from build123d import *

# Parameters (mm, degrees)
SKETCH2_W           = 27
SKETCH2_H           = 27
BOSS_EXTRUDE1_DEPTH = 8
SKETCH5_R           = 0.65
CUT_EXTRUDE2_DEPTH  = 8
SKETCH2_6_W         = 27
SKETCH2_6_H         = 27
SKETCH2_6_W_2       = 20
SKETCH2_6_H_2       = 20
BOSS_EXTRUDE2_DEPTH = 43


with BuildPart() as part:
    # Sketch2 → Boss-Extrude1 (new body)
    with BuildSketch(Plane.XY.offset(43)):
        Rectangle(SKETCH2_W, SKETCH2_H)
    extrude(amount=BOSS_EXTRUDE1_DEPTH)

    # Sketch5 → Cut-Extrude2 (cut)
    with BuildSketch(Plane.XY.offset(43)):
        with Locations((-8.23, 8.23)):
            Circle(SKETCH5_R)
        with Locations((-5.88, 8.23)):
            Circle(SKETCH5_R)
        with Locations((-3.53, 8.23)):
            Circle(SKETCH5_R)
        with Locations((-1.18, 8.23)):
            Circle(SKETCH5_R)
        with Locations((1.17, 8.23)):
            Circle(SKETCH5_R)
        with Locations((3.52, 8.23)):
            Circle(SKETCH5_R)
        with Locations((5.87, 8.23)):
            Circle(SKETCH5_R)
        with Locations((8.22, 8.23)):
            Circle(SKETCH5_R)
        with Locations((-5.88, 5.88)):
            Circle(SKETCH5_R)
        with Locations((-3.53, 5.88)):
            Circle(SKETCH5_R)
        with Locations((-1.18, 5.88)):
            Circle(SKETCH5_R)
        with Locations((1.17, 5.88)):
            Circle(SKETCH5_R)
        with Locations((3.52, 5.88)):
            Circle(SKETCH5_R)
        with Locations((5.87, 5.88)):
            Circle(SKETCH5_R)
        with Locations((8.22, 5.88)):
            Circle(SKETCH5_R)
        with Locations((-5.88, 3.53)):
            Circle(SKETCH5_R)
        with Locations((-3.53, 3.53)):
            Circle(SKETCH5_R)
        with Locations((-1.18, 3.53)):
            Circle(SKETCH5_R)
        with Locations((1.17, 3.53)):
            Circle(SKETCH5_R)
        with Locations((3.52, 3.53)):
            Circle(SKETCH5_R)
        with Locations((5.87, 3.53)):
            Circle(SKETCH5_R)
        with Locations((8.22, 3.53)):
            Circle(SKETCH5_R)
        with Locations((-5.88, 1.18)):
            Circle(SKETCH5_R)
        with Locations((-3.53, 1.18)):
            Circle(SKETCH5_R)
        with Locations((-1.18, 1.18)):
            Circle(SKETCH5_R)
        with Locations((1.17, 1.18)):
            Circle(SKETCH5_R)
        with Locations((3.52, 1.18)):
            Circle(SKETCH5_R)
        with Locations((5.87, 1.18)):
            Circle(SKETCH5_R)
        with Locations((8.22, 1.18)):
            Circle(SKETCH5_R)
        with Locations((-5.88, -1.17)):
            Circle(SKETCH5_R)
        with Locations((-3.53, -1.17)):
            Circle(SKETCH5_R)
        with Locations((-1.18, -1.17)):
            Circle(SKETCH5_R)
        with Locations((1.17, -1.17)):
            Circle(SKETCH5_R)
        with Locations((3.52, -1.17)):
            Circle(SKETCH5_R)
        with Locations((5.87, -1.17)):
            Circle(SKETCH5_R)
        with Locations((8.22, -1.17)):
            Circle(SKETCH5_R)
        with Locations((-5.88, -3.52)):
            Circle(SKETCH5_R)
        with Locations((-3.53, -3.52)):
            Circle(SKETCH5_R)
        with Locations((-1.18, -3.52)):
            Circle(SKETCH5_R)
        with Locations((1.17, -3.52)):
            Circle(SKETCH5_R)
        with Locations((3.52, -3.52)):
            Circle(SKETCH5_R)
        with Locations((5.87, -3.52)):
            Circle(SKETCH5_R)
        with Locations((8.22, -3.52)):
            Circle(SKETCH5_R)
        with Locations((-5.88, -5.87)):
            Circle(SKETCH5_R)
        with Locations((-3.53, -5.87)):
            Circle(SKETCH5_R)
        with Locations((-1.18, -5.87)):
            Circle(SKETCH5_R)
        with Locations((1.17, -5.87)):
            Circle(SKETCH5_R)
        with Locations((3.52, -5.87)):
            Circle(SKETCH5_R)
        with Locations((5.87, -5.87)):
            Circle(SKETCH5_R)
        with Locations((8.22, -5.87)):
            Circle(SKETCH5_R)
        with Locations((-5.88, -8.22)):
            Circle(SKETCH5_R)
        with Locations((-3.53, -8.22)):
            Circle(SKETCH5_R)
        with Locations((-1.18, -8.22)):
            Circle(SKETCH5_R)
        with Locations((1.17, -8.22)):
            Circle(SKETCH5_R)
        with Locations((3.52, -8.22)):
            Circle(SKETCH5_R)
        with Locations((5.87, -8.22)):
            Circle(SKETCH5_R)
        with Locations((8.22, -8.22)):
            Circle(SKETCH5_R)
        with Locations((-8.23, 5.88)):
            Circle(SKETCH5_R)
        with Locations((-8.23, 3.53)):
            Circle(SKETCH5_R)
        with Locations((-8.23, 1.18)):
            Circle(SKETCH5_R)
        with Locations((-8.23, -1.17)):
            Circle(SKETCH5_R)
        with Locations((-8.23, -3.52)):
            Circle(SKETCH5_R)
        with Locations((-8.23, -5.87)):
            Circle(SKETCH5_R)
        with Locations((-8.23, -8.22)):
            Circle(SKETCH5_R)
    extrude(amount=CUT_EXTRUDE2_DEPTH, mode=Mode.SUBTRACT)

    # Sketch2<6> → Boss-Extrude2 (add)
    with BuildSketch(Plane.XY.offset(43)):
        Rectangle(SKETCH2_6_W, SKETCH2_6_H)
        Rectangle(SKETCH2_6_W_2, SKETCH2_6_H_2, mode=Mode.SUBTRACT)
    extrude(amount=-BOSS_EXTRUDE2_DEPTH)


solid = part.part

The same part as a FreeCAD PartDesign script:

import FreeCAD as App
import Part
import Sketcher

V = App.Vector

doc = App.newDocument("Part")
body = doc.addObject("PartDesign::Body", "Body")

sketch1 = body.newObject("Sketcher::SketchObject", "Sketch")
sketch1.AttachmentSupport = (doc.getObject("XY_Plane"), [""])
sketch1.MapMode = "FlatFace"
sketch1.AttachmentOffset = App.Placement(V(0, 0, 43), App.Rotation())
sketch1.addGeometry(Part.LineSegment(V(-13.5, 13.5, 0), V(-13.5, -13.5, 0)), False)
sketch1.addGeometry(Part.LineSegment(V(-13.5, -13.5, 0), V(13.5, -13.5, 0)), False)
sketch1.addGeometry(Part.LineSegment(V(13.5, -13.5, 0), V(13.5, 13.5, 0)), False)
sketch1.addGeometry(Part.LineSegment(V(13.5, 13.5, 0), V(-13.5, 13.5, 0)), False)
sketch1.addConstraint(Sketcher.Constraint("Coincident", 0, 2, 1, 1))
sketch1.addConstraint(Sketcher.Constraint("Coincident", 1, 2, 2, 1))
sketch1.addConstraint(Sketcher.Constraint("Coincident", 2, 2, 3, 1))
sketch1.addConstraint(Sketcher.Constraint("Coincident", 3, 2, 0, 1))
sketch1.addConstraint(Sketcher.Constraint("Vertical", 0))
sketch1.addConstraint(Sketcher.Constraint("Horizontal", 1))
sketch1.addConstraint(Sketcher.Constraint("Vertical", 2))
sketch1.addConstraint(Sketcher.Constraint("Horizontal", 3))
sketch1.addConstraint(Sketcher.Constraint("Symmetric", 0, 2, 2, 2, -1, 1))
sketch1.addConstraint(Sketcher.Constraint("Equal", 3, 0))
sketch1.addConstraint(Sketcher.Constraint("DistanceX", 1, 1, 1, 2, 27.0))
pad1 = body.newObject("PartDesign::Pad", "Pad")
pad1.Profile = sketch1
pad1.Length = 8

sketch2 = body.newObject("Sketcher::SketchObject", "Sketch001")
sketch2.AttachmentSupport = (doc.getObject("XY_Plane"), [""])
sketch2.MapMode = "FlatFace"
sketch2.AttachmentOffset = App.Placement(V(0, 0, 43), App.Rotation())
sketch2.addGeometry(Part.Circle(V(-8.23, 8.23, 0), V(0, 0, 1), 0.65), False)
sketch2.addGeometry(Part.Circle(V(-5.88, 8.23, 0), V(0, 0, 1), 0.65), False)
sketch2.addGeometry(Part.Circle(V(-3.53, 8.23, 0), V(0, 0, 1), 0.65), False)
sketch2.addGeometry(Part.Circle(V(-1.18, 8.23, 0), V(0, 0, 1), 0.65), False)
sketch2.addGeometry(Part.Circle(V(1.17, 8.23, 0), V(0, 0, 1), 0.65), False)
sketch2.addGeometry(Part.Circle(V(3.52, 8.23, 0), V(0, 0, 1), 0.65), False)
sketch2.addGeometry(Part.Circle(V(5.87, 8.23, 0), V(0, 0, 1), 0.65), False)
sketch2.addGeometry(Part.Circle(V(8.22, 8.23, 0), V(0, 0, 1), 0.65), False)
sketch2.addGeometry(Part.Circle(V(-5.88, 5.88, 0), V(0, 0, 1), 0.65), False)
sketch2.addGeometry(Part.Circle(V(-3.53, 5.88, 0), V(0, 0, 1), 0.65), False)
sketch2.addGeometry(Part.Circle(V(-1.18, 5.88, 0), V(0, 0, 1), 0.65), False)
sketch2.addGeometry(Part.Circle(V(1.17, 5.88, 0), V(0, 0, 1), 0.65), False)
sketch2.addGeometry(Part.Circle(V(3.52, 5.88, 0), V(0, 0, 1), 0.65), False)
sketch2.addGeometry(Part.Circle(V(5.87, 5.88, 0), V(0, 0, 1), 0.65), False)
sketch2.addGeometry(Part.Circle(V(8.22, 5.88, 0), V(0, 0, 1), 0.65), False)
sketch2.addGeometry(Part.Circle(V(-5.88, 3.53, 0), V(0, 0, 1), 0.65), False)
sketch2.addGeometry(Part.Circle(V(-3.53, 3.53, 0), V(0, 0, 1), 0.65), False)
sketch2.addGeometry(Part.Circle(V(-1.18, 3.53, 0), V(0, 0, 1), 0.65), False)
sketch2.addGeometry(Part.Circle(V(1.17, 3.53, 0), V(0, 0, 1), 0.65), False)
sketch2.addGeometry(Part.Circle(V(3.52, 3.53, 0), V(0, 0, 1), 0.65), False)
sketch2.addGeometry(Part.Circle(V(5.87, 3.53, 0), V(0, 0, 1), 0.65), False)
sketch2.addGeometry(Part.Circle(V(8.22, 3.53, 0), V(0, 0, 1), 0.65), False)
sketch2.addGeometry(Part.Circle(V(-5.88, 1.18, 0), V(0, 0, 1), 0.65), False)
sketch2.addGeometry(Part.Circle(V(-3.53, 1.18, 0), V(0, 0, 1), 0.65), False)
sketch2.addGeometry(Part.Circle(V(-1.18, 1.18, 0), V(0, 0, 1), 0.65), False)
sketch2.addGeometry(Part.Circle(V(1.17, 1.18, 0), V(0, 0, 1), 0.65), False)
sketch2.addGeometry(Part.Circle(V(3.52, 1.18, 0), V(0, 0, 1), 0.65), False)
sketch2.addGeometry(Part.Circle(V(5.87, 1.18, 0), V(0, 0, 1), 0.65), False)
sketch2.addGeometry(Part.Circle(V(8.22, 1.18, 0), V(0, 0, 1), 0.65), False)
sketch2.addGeometry(Part.Circle(V(-5.88, -1.17, 0), V(0, 0, 1), 0.65), False)
sketch2.addGeometry(Part.Circle(V(-3.53, -1.17, 0), V(0, 0, 1), 0.65), False)
sketch2.addGeometry(Part.Circle(V(-1.18, -1.17, 0), V(0, 0, 1), 0.65), False)
sketch2.addGeometry(Part.Circle(V(1.17, -1.17, 0), V(0, 0, 1), 0.65), False)
sketch2.addGeometry(Part.Circle(V(3.52, -1.17, 0), V(0, 0, 1), 0.65), False)
sketch2.addGeometry(Part.Circle(V(5.87, -1.17, 0), V(0, 0, 1), 0.65), False)
sketch2.addGeometry(Part.Circle(V(8.22, -1.17, 0), V(0, 0, 1), 0.65), False)
sketch2.addGeometry(Part.Circle(V(-5.88, -3.52, 0), V(0, 0, 1), 0.65), False)
sketch2.addGeometry(Part.Circle(V(-3.53, -3.52, 0), V(0, 0, 1), 0.65), False)
sketch2.addGeometry(Part.Circle(V(-1.18, -3.52, 0), V(0, 0, 1), 0.65), False)
sketch2.addGeometry(Part.Circle(V(1.17, -3.52, 0), V(0, 0, 1), 0.65), False)
sketch2.addGeometry(Part.Circle(V(3.52, -3.52, 0), V(0, 0, 1), 0.65), False)
sketch2.addGeometry(Part.Circle(V(5.87, -3.52, 0), V(0, 0, 1), 0.65), False)
sketch2.addGeometry(Part.Circle(V(8.22, -3.52, 0), V(0, 0, 1), 0.65), False)
sketch2.addGeometry(Part.Circle(V(-5.88, -5.87, 0), V(0, 0, 1), 0.65), False)
sketch2.addGeometry(Part.Circle(V(-3.53, -5.87, 0), V(0, 0, 1), 0.65), False)
sketch2.addGeometry(Part.Circle(V(-1.18, -5.87, 0), V(0, 0, 1), 0.65), False)
sketch2.addGeometry(Part.Circle(V(1.17, -5.87, 0), V(0, 0, 1), 0.65), False)
sketch2.addGeometry(Part.Circle(V(3.52, -5.87, 0), V(0, 0, 1), 0.65), False)
sketch2.addGeometry(Part.Circle(V(5.87, -5.87, 0), V(0, 0, 1), 0.65), False)
sketch2.addGeometry(Part.Circle(V(8.22, -5.87, 0), V(0, 0, 1), 0.65), False)
sketch2.addGeometry(Part.Circle(V(-5.88, -8.22, 0), V(0, 0, 1), 0.65), False)
sketch2.addGeometry(Part.Circle(V(-3.53, -8.22, 0), V(0, 0, 1), 0.65), False)
sketch2.addGeometry(Part.Circle(V(-1.18, -8.22, 0), V(0, 0, 1), 0.65), False)
sketch2.addGeometry(Part.Circle(V(1.17, -8.22, 0), V(0, 0, 1), 0.65), False)
sketch2.addGeometry(Part.Circle(V(3.52, -8.22, 0), V(0, 0, 1), 0.65), False)
sketch2.addGeometry(Part.Circle(V(5.87, -8.22, 0), V(0, 0, 1), 0.65), False)
sketch2.addGeometry(Part.Circle(V(8.22, -8.22, 0), V(0, 0, 1), 0.65), False)
sketch2.addGeometry(Part.Circle(V(-8.23, 5.88, 0), V(0, 0, 1), 0.65), False)
sketch2.addGeometry(Part.Circle(V(-8.23, 3.53, 0), V(0, 0, 1), 0.65), False)
sketch2.addGeometry(Part.Circle(V(-8.23, 1.18, 0), V(0, 0, 1), 0.65), False)
sketch2.addGeometry(Part.Circle(V(-8.23, -1.17, 0), V(0, 0, 1), 0.65), False)
sketch2.addGeometry(Part.Circle(V(-8.23, -3.52, 0), V(0, 0, 1), 0.65), False)
sketch2.addGeometry(Part.Circle(V(-8.23, -5.87, 0), V(0, 0, 1), 0.65), False)
sketch2.addGeometry(Part.Circle(V(-8.23, -8.22, 0), V(0, 0, 1), 0.65), False)
sketch2.addConstraint(Sketcher.Constraint("Equal", 0, 1))
sketch2.addConstraint(Sketcher.Constraint("Equal", 1, 2))
sketch2.addConstraint(Sketcher.Constraint("Equal", 2, 3))
sketch2.addConstraint(Sketcher.Constraint("Equal", 3, 4))
sketch2.addConstraint(Sketcher.Constraint("Equal", 4, 5))
sketch2.addConstraint(Sketcher.Constraint("Equal", 5, 6))
sketch2.addConstraint(Sketcher.Constraint("Equal", 6, 7))
sketch2.addConstraint(Sketcher.Constraint("Equal", 7, 8))
sketch2.addConstraint(Sketcher.Constraint("Equal", 8, 9))
sketch2.addConstraint(Sketcher.Constraint("Equal", 9, 10))
sketch2.addConstraint(Sketcher.Constraint("Equal", 10, 11))
sketch2.addConstraint(Sketcher.Constraint("Equal", 11, 12))
sketch2.addConstraint(Sketcher.Constraint("Equal", 12, 13))
sketch2.addConstraint(Sketcher.Constraint("Equal", 13, 14))
sketch2.addConstraint(Sketcher.Constraint("Equal", 14, 15))
sketch2.addConstraint(Sketcher.Constraint("Equal", 15, 16))
sketch2.addConstraint(Sketcher.Constraint("Equal", 16, 17))
sketch2.addConstraint(Sketcher.Constraint("Equal", 17, 18))
sketch2.addConstraint(Sketcher.Constraint("Equal", 18, 19))
sketch2.addConstraint(Sketcher.Constraint("Equal", 19, 20))
sketch2.addConstraint(Sketcher.Constraint("Equal", 20, 21))
sketch2.addConstraint(Sketcher.Constraint("Equal", 21, 22))
sketch2.addConstraint(Sketcher.Constraint("Equal", 22, 23))
sketch2.addConstraint(Sketcher.Constraint("Equal", 23, 24))
sketch2.addConstraint(Sketcher.Constraint("Equal", 24, 25))
sketch2.addConstraint(Sketcher.Constraint("Equal", 25, 26))
sketch2.addConstraint(Sketcher.Constraint("Equal", 26, 27))
sketch2.addConstraint(Sketcher.Constraint("Equal", 27, 28))
sketch2.addConstraint(Sketcher.Constraint("Equal", 28, 29))
sketch2.addConstraint(Sketcher.Constraint("Equal", 29, 30))
sketch2.addConstraint(Sketcher.Constraint("Equal", 30, 31))
sketch2.addConstraint(Sketcher.Constraint("Equal", 31, 32))
sketch2.addConstraint(Sketcher.Constraint("Equal", 32, 33))
sketch2.addConstraint(Sketcher.Constraint("Equal", 33, 34))
sketch2.addConstraint(Sketcher.Constraint("Equal", 34, 35))
sketch2.addConstraint(Sketcher.Constraint("Equal", 35, 36))
sketch2.addConstraint(Sketcher.Constraint("Equal", 36, 37))
sketch2.addConstraint(Sketcher.Constraint("Equal", 37, 38))
sketch2.addConstraint(Sketcher.Constraint("Equal", 38, 39))
sketch2.addConstraint(Sketcher.Constraint("Equal", 39, 40))
sketch2.addConstraint(Sketcher.Constraint("Equal", 40, 41))
sketch2.addConstraint(Sketcher.Constraint("Equal", 41, 42))
sketch2.addConstraint(Sketcher.Constraint("Equal", 42, 43))
sketch2.addConstraint(Sketcher.Constraint("Equal", 43, 44))
sketch2.addConstraint(Sketcher.Constraint("Equal", 44, 45))
sketch2.addConstraint(Sketcher.Constraint("Equal", 45, 46))
sketch2.addConstraint(Sketcher.Constraint("Equal", 46, 47))
sketch2.addConstraint(Sketcher.Constraint("Equal", 47, 48))
sketch2.addConstraint(Sketcher.Constraint("Equal", 48, 49))
sketch2.addConstraint(Sketcher.Constraint("Equal", 49, 50))
sketch2.addConstraint(Sketcher.Constraint("Equal", 50, 51))
sketch2.addConstraint(Sketcher.Constraint("Equal", 51, 52))
sketch2.addConstraint(Sketcher.Constraint("Equal", 52, 53))
sketch2.addConstraint(Sketcher.Constraint("Equal", 53, 54))
sketch2.addConstraint(Sketcher.Constraint("Equal", 54, 55))
sketch2.addConstraint(Sketcher.Constraint("Equal", 55, 56))
sketch2.addConstraint(Sketcher.Constraint("Equal", 56, 57))
sketch2.addConstraint(Sketcher.Constraint("Equal", 57, 58))
sketch2.addConstraint(Sketcher.Constraint("Equal", 58, 59))
sketch2.addConstraint(Sketcher.Constraint("Equal", 59, 60))
sketch2.addConstraint(Sketcher.Constraint("Equal", 60, 61))
sketch2.addConstraint(Sketcher.Constraint("Equal", 61, 62))
sketch2.addConstraint(Sketcher.Constraint("Equal", 62, 63))
sketch2.addConstraint(Sketcher.Constraint("Horizontal", 0, 3, 1, 3))
sketch2.addConstraint(Sketcher.Constraint("Horizontal", 1, 3, 2, 3))
sketch2.addConstraint(Sketcher.Constraint("Horizontal", 2, 3, 3, 3))
sketch2.addConstraint(Sketcher.Constraint("Horizontal", 3, 3, 4, 3))
sketch2.addConstraint(Sketcher.Constraint("Horizontal", 4, 3, 5, 3))
sketch2.addConstraint(Sketcher.Constraint("Horizontal", 5, 3, 6, 3))
sketch2.addConstraint(Sketcher.Constraint("Horizontal", 6, 3, 7, 3))
sketch2.addConstraint(Sketcher.Constraint("Horizontal", 8, 3, 9, 3))
sketch2.addConstraint(Sketcher.Constraint("Horizontal", 9, 3, 10, 3))
sketch2.addConstraint(Sketcher.Constraint("Horizontal", 10, 3, 11, 3))
sketch2.addConstraint(Sketcher.Constraint("Horizontal", 11, 3, 12, 3))
sketch2.addConstraint(Sketcher.Constraint("Horizontal", 12, 3, 13, 3))
sketch2.addConstraint(Sketcher.Constraint("Horizontal", 13, 3, 14, 3))
sketch2.addConstraint(Sketcher.Constraint("Horizontal", 15, 3, 16, 3))
sketch2.addConstraint(Sketcher.Constraint("Horizontal", 16, 3, 17, 3))
sketch2.addConstraint(Sketcher.Constraint("Horizontal", 17, 3, 18, 3))
sketch2.addConstraint(Sketcher.Constraint("Horizontal", 18, 3, 19, 3))
sketch2.addConstraint(Sketcher.Constraint("Horizontal", 19, 3, 20, 3))
sketch2.addConstraint(Sketcher.Constraint("Horizontal", 20, 3, 21, 3))
sketch2.addConstraint(Sketcher.Constraint("Horizontal", 22, 3, 23, 3))
sketch2.addConstraint(Sketcher.Constraint("Horizontal", 23, 3, 24, 3))
sketch2.addConstraint(Sketcher.Constraint("Horizontal", 24, 3, 25, 3))
sketch2.addConstraint(Sketcher.Constraint("Horizontal", 25, 3, 26, 3))
sketch2.addConstraint(Sketcher.Constraint("Horizontal", 26, 3, 27, 3))
sketch2.addConstraint(Sketcher.Constraint("Horizontal", 27, 3, 28, 3))
sketch2.addConstraint(Sketcher.Constraint("Horizontal", 29, 3, 30, 3))
sketch2.addConstraint(Sketcher.Constraint("Horizontal", 30, 3, 31, 3))
sketch2.addConstraint(Sketcher.Constraint("Horizontal", 31, 3, 32, 3))
sketch2.addConstraint(Sketcher.Constraint("Horizontal", 32, 3, 33, 3))
sketch2.addConstraint(Sketcher.Constraint("Horizontal", 33, 3, 34, 3))
sketch2.addConstraint(Sketcher.Constraint("Horizontal", 34, 3, 35, 3))
sketch2.addConstraint(Sketcher.Constraint("Horizontal", 36, 3, 37, 3))
sketch2.addConstraint(Sketcher.Constraint("Horizontal", 37, 3, 38, 3))
sketch2.addConstraint(Sketcher.Constraint("Horizontal", 38, 3, 39, 3))
sketch2.addConstraint(Sketcher.Constraint("Horizontal", 39, 3, 40, 3))
sketch2.addConstraint(Sketcher.Constraint("Horizontal", 40, 3, 41, 3))
sketch2.addConstraint(Sketcher.Constraint("Horizontal", 41, 3, 42, 3))
sketch2.addConstraint(Sketcher.Constraint("Horizontal", 43, 3, 44, 3))
sketch2.addConstraint(Sketcher.Constraint("Horizontal", 44, 3, 45, 3))
sketch2.addConstraint(Sketcher.Constraint("Horizontal", 45, 3, 46, 3))
sketch2.addConstraint(Sketcher.Constraint("Horizontal", 46, 3, 47, 3))
sketch2.addConstraint(Sketcher.Constraint("Horizontal", 47, 3, 48, 3))
sketch2.addConstraint(Sketcher.Constraint("Horizontal", 48, 3, 49, 3))
sketch2.addConstraint(Sketcher.Constraint("Horizontal", 50, 3, 51, 3))
sketch2.addConstraint(Sketcher.Constraint("Horizontal", 51, 3, 52, 3))
sketch2.addConstraint(Sketcher.Constraint("Horizontal", 52, 3, 53, 3))
sketch2.addConstraint(Sketcher.Constraint("Horizontal", 53, 3, 54, 3))
sketch2.addConstraint(Sketcher.Constraint("Horizontal", 54, 3, 55, 3))
sketch2.addConstraint(Sketcher.Constraint("Horizontal", 55, 3, 56, 3))
sketch2.addConstraint(Sketcher.Constraint("Horizontal", 14, 3, 57, 3))
sketch2.addConstraint(Sketcher.Constraint("Horizontal", 21, 3, 58, 3))
sketch2.addConstraint(Sketcher.Constraint("Horizontal", 28, 3, 59, 3))
sketch2.addConstraint(Sketcher.Constraint("Horizontal", 35, 3, 60, 3))
sketch2.addConstraint(Sketcher.Constraint("Horizontal", 42, 3, 61, 3))
sketch2.addConstraint(Sketcher.Constraint("Horizontal", 49, 3, 62, 3))
sketch2.addConstraint(Sketcher.Constraint("Horizontal", 56, 3, 63, 3))
sketch2.addConstraint(Sketcher.Constraint("Vertical", 1, 3, 8, 3))
sketch2.addConstraint(Sketcher.Constraint("Vertical", 2, 3, 9, 3))
sketch2.addConstraint(Sketcher.Constraint("Vertical", 3, 3, 10, 3))
sketch2.addConstraint(Sketcher.Constraint("Vertical", 4, 3, 11, 3))
sketch2.addConstraint(Sketcher.Constraint("Vertical", 5, 3, 12, 3))
sketch2.addConstraint(Sketcher.Constraint("Vertical", 6, 3, 13, 3))
sketch2.addConstraint(Sketcher.Constraint("Vertical", 7, 3, 14, 3))
sketch2.addConstraint(Sketcher.Constraint("Vertical", 8, 3, 15, 3))
sketch2.addConstraint(Sketcher.Constraint("Vertical", 9, 3, 16, 3))
sketch2.addConstraint(Sketcher.Constraint("Vertical", 10, 3, 17, 3))
sketch2.addConstraint(Sketcher.Constraint("Vertical", 11, 3, 18, 3))
sketch2.addConstraint(Sketcher.Constraint("Vertical", 12, 3, 19, 3))
sketch2.addConstraint(Sketcher.Constraint("Vertical", 13, 3, 20, 3))
sketch2.addConstraint(Sketcher.Constraint("Vertical", 14, 3, 21, 3))
sketch2.addConstraint(Sketcher.Constraint("Vertical", 15, 3, 22, 3))
sketch2.addConstraint(Sketcher.Constraint("Vertical", 16, 3, 23, 3))
sketch2.addConstraint(Sketcher.Constraint("Vertical", 17, 3, 24, 3))
sketch2.addConstraint(Sketcher.Constraint("Vertical", 18, 3, 25, 3))
sketch2.addConstraint(Sketcher.Constraint("Vertical", 19, 3, 26, 3))
sketch2.addConstraint(Sketcher.Constraint("Vertical", 20, 3, 27, 3))
sketch2.addConstraint(Sketcher.Constraint("Vertical", 21, 3, 28, 3))
sketch2.addConstraint(Sketcher.Constraint("Vertical", 22, 3, 29, 3))
sketch2.addConstraint(Sketcher.Constraint("Vertical", 23, 3, 30, 3))
sketch2.addConstraint(Sketcher.Constraint("Vertical", 24, 3, 31, 3))
sketch2.addConstraint(Sketcher.Constraint("Vertical", 25, 3, 32, 3))
sketch2.addConstraint(Sketcher.Constraint("Vertical", 26, 3, 33, 3))
sketch2.addConstraint(Sketcher.Constraint("Vertical", 27, 3, 34, 3))
sketch2.addConstraint(Sketcher.Constraint("Vertical", 28, 3, 35, 3))
sketch2.addConstraint(Sketcher.Constraint("Vertical", 29, 3, 36, 3))
sketch2.addConstraint(Sketcher.Constraint("Vertical", 30, 3, 37, 3))
sketch2.addConstraint(Sketcher.Constraint("Vertical", 31, 3, 38, 3))
sketch2.addConstraint(Sketcher.Constraint("Vertical", 32, 3, 39, 3))
sketch2.addConstraint(Sketcher.Constraint("Vertical", 33, 3, 40, 3))
sketch2.addConstraint(Sketcher.Constraint("Vertical", 34, 3, 41, 3))
sketch2.addConstraint(Sketcher.Constraint("Vertical", 35, 3, 42, 3))
sketch2.addConstraint(Sketcher.Constraint("Vertical", 36, 3, 43, 3))
sketch2.addConstraint(Sketcher.Constraint("Vertical", 37, 3, 44, 3))
sketch2.addConstraint(Sketcher.Constraint("Vertical", 38, 3, 45, 3))
sketch2.addConstraint(Sketcher.Constraint("Vertical", 39, 3, 46, 3))
sketch2.addConstraint(Sketcher.Constraint("Vertical", 40, 3, 47, 3))
sketch2.addConstraint(Sketcher.Constraint("Vertical", 41, 3, 48, 3))
sketch2.addConstraint(Sketcher.Constraint("Vertical", 42, 3, 49, 3))
sketch2.addConstraint(Sketcher.Constraint("Vertical", 43, 3, 50, 3))
sketch2.addConstraint(Sketcher.Constraint("Vertical", 44, 3, 51, 3))
sketch2.addConstraint(Sketcher.Constraint("Vertical", 45, 3, 52, 3))
sketch2.addConstraint(Sketcher.Constraint("Vertical", 46, 3, 53, 3))
sketch2.addConstraint(Sketcher.Constraint("Vertical", 47, 3, 54, 3))
sketch2.addConstraint(Sketcher.Constraint("Vertical", 48, 3, 55, 3))
sketch2.addConstraint(Sketcher.Constraint("Vertical", 49, 3, 56, 3))
sketch2.addConstraint(Sketcher.Constraint("Vertical", 0, 3, 57, 3))
sketch2.addConstraint(Sketcher.Constraint("Vertical", 57, 3, 58, 3))
sketch2.addConstraint(Sketcher.Constraint("Vertical", 58, 3, 59, 3))
sketch2.addConstraint(Sketcher.Constraint("Vertical", 59, 3, 60, 3))
sketch2.addConstraint(Sketcher.Constraint("Vertical", 60, 3, 61, 3))
sketch2.addConstraint(Sketcher.Constraint("Vertical", 61, 3, 62, 3))
sketch2.addConstraint(Sketcher.Constraint("Vertical", 62, 3, 63, 3))
sketch2.addConstraint(Sketcher.Constraint("Diameter", 0, 1.3))
sketch2.addConstraint(Sketcher.Constraint("DistanceX", 0, 3, -1, 1, 8.23))
sketch2.addConstraint(Sketcher.Constraint("DistanceY", -1, 1, 0, 3, 8.23))
sketch2.addConstraint(Sketcher.Constraint("DistanceX", 1, 3, -1, 1, 5.88))
sketch2.addConstraint(Sketcher.Constraint("DistanceX", 2, 3, -1, 1, 3.53))
sketch2.addConstraint(Sketcher.Constraint("DistanceX", 3, 3, -1, 1, 1.18))
sketch2.addConstraint(Sketcher.Constraint("DistanceX", -1, 1, 4, 3, 1.17))
sketch2.addConstraint(Sketcher.Constraint("DistanceX", -1, 1, 5, 3, 3.52))
sketch2.addConstraint(Sketcher.Constraint("DistanceX", -1, 1, 6, 3, 5.87))
sketch2.addConstraint(Sketcher.Constraint("DistanceX", -1, 1, 7, 3, 8.22))
sketch2.addConstraint(Sketcher.Constraint("DistanceY", -1, 1, 8, 3, 5.88))
sketch2.addConstraint(Sketcher.Constraint("DistanceY", -1, 1, 15, 3, 3.53))
sketch2.addConstraint(Sketcher.Constraint("DistanceY", -1, 1, 22, 3, 1.18))
sketch2.addConstraint(Sketcher.Constraint("DistanceY", 29, 3, -1, 1, 1.17))
sketch2.addConstraint(Sketcher.Constraint("DistanceY", 36, 3, -1, 1, 3.52))
sketch2.addConstraint(Sketcher.Constraint("DistanceY", 43, 3, -1, 1, 5.87))
sketch2.addConstraint(Sketcher.Constraint("DistanceY", 50, 3, -1, 1, 8.22))
pocket1 = body.newObject("PartDesign::Pocket", "Pocket")
pocket1.Profile = sketch2
pocket1.Length = 8
pocket1.Reversed = True

sketch3 = body.newObject("Sketcher::SketchObject", "Sketch002")
sketch3.AttachmentSupport = (doc.getObject("XY_Plane"), [""])
sketch3.MapMode = "FlatFace"
sketch3.AttachmentOffset = App.Placement(V(0, 0, 43), App.Rotation())
sketch3.addGeometry(Part.LineSegment(V(-13.5, 13.5, 0), V(-13.5, -13.5, 0)), False)
sketch3.addGeometry(Part.LineSegment(V(-13.5, -13.5, 0), V(13.5, -13.5, 0)), False)
sketch3.addGeometry(Part.LineSegment(V(13.5, -13.5, 0), V(13.5, 13.5, 0)), False)
sketch3.addGeometry(Part.LineSegment(V(13.5, 13.5, 0), V(-13.5, 13.5, 0)), False)
sketch3.addGeometry(Part.LineSegment(V(10, -10, 0), V(-10, -10, 0)), False)
sketch3.addGeometry(Part.LineSegment(V(-10, -10, 0), V(-10, 10, 0)), False)
sketch3.addGeometry(Part.LineSegment(V(-10, 10, 0), V(10, 10, 0)), False)
sketch3.addGeometry(Part.LineSegment(V(10, 10, 0), V(10, -10, 0)), False)
sketch3.addConstraint(Sketcher.Constraint("Coincident", 0, 2, 1, 1))
sketch3.addConstraint(Sketcher.Constraint("Coincident", 1, 2, 2, 1))
sketch3.addConstraint(Sketcher.Constraint("Coincident", 2, 2, 3, 1))
sketch3.addConstraint(Sketcher.Constraint("Coincident", 3, 2, 0, 1))
sketch3.addConstraint(Sketcher.Constraint("Coincident", 4, 2, 5, 1))
sketch3.addConstraint(Sketcher.Constraint("Coincident", 5, 2, 6, 1))
sketch3.addConstraint(Sketcher.Constraint("Coincident", 6, 2, 7, 1))
sketch3.addConstraint(Sketcher.Constraint("Coincident", 7, 2, 4, 1))
sketch3.addConstraint(Sketcher.Constraint("Vertical", 0))
sketch3.addConstraint(Sketcher.Constraint("Horizontal", 1))
sketch3.addConstraint(Sketcher.Constraint("Vertical", 2))
sketch3.addConstraint(Sketcher.Constraint("Horizontal", 3))
sketch3.addConstraint(Sketcher.Constraint("Horizontal", 4))
sketch3.addConstraint(Sketcher.Constraint("Vertical", 5))
sketch3.addConstraint(Sketcher.Constraint("Horizontal", 6))
sketch3.addConstraint(Sketcher.Constraint("Vertical", 7))
sketch3.addConstraint(Sketcher.Constraint("Symmetric", 0, 2, 2, 2, -1, 1))
sketch3.addConstraint(Sketcher.Constraint("Symmetric", 4, 2, 6, 2, -1, 1))
sketch3.addConstraint(Sketcher.Constraint("Equal", 3, 0))
sketch3.addConstraint(Sketcher.Constraint("Equal", 6, 5))
sketch3.addConstraint(Sketcher.Constraint("DistanceX", 1, 1, 1, 2, 27.0))
sketch3.addConstraint(Sketcher.Constraint("DistanceX", 4, 2, 4, 1, 20.0))
pad2 = body.newObject("PartDesign::Pad", "Pad001")
pad2.Profile = sketch3
pad2.Length = 43
pad2.Reversed = True

doc.recompute()
